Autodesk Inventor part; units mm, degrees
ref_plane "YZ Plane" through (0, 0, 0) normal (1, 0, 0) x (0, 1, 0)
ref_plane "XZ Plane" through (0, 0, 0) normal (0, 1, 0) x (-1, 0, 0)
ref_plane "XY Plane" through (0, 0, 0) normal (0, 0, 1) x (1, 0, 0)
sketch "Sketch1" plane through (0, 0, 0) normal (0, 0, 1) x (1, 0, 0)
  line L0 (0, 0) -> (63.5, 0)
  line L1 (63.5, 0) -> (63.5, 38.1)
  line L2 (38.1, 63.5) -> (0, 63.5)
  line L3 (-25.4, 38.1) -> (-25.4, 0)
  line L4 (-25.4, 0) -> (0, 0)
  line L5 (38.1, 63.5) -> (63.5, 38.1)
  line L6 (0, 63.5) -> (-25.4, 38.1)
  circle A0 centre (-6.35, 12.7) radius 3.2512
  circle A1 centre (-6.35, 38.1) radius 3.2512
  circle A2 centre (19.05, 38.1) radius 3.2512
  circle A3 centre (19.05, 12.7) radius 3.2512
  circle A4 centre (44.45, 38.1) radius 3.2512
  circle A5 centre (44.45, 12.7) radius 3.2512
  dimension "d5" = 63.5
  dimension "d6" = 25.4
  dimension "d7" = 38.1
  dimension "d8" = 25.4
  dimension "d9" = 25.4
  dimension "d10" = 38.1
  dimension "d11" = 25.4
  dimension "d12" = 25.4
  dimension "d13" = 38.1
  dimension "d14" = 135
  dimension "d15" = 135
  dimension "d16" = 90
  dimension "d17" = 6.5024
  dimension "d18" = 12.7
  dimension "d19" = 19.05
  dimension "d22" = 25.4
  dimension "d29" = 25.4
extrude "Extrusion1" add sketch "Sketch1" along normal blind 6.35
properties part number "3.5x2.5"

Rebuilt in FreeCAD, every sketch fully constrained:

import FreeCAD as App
import Part
import Sketcher
Q = App.Units.Quantity


def add_polygon(sketch, points):
    """Adds a closed chain of lines whose ends are joined by coincident constraints."""
    first, n = sketch.GeometryCount, len(points)
    for a, b in zip(points, points[1:] + points[:1]):
        sketch.addGeometry(Part.LineSegment(App.Vector(*a, 0), App.Vector(*b, 0)), False)
    for i in range(n):
        sketch.addConstraint(Sketcher.Constraint("Coincident", first + i, 2, first + (i + 1) % n, 1))

doc = App.newDocument("Part")
body = doc.addObject("PartDesign::Body", "Body")

sketch1 = body.newObject("Sketcher::SketchObject", "Sketch")
sketch1.AttachmentSupport = (doc.getObject("XY_Plane"), [""])
sketch1.MapMode = "FlatFace"
add_polygon(sketch1, [(-25.4, 0), (63.5, 0), (63.5, 38.1), (38.1, 63.5), (0, 63.5), (-25.4, 38.1)])
sketch1.addGeometry(Part.Circle(App.Vector(-6.3, 12.7, 0), App.Vector(0, 0, 1), 3.3), False)
sketch1.addGeometry(Part.Circle(App.Vector(19.1, 12.7, 0), App.Vector(0, 0, 1), 3.3), False)
sketch1.addGeometry(Part.Circle(App.Vector(44.5, 12.7, 0), App.Vector(0, 0, 1), 3.3), False)
sketch1.addGeometry(Part.Circle(App.Vector(-6.3, 38.1, 0), App.Vector(0, 0, 1), 3.3), False)
sketch1.addGeometry(Part.Circle(App.Vector(19.1, 38.1, 0), App.Vector(0, 0, 1), 3.3), False)
sketch1.addGeometry(Part.Circle(App.Vector(44.5, 38.1, 0), App.Vector(0, 0, 1), 3.3), False)
sketch1.addConstraint([
    Sketcher.Constraint("Horizontal", 0),
    Sketcher.Constraint("Vertical", 1),
    Sketcher.Constraint("Horizontal", 3),
    Sketcher.Constraint("Vertical", 5),
    Sketcher.Constraint("Equal", 6, 7),
    Sketcher.Constraint("Equal", 7, 8),
    Sketcher.Constraint("Equal", 8, 9),
    Sketcher.Constraint("Equal", 9, 10),
    Sketcher.Constraint("Equal", 10, 11),
    Sketcher.Constraint("PointOnObject", 0, 2, -1),
    Sketcher.Constraint("PointOnObject", 3, 2, -2),
    Sketcher.Constraint("Perpendicular", 2, 4),
    Sketcher.Constraint("Horizontal", 6, 3, 7, 3),
    Sketcher.Constraint("Horizontal", 7, 3, 8, 3),
    Sketcher.Constraint("Horizontal", 9, 3, 10, 3),
    Sketcher.Constraint("Horizontal", 10, 3, 11, 3),
    Sketcher.Constraint("Horizontal", 11, 3, 1, 2),
    Sketcher.Constraint("Horizontal", 1, 2, 4, 2),
    Sketcher.Constraint("Vertical", 6, 3, 9, 3),
    Sketcher.Constraint("Vertical", 7, 3, 10, 3),
    Sketcher.Constraint("Vertical", 8, 3, 11, 3),
    Sketcher.Constraint("Equal", 3, 1),
    Sketcher.Constraint("Equal", 2, 4),
    Sketcher.Constraint("Diameter", 6, Q("0.256 in")),
    Sketcher.Constraint("DistanceX", 3, 2, 3, 1, Q("1.5 in")),
    Sketcher.Constraint("DistanceX", 4, 2, -1, 1, Q("1 in")),
    Sketcher.Constraint("DistanceX", 6, 3, 7, 3, Q("1 in")),
    Sketcher.Constraint("DistanceX", 7, 3, 8, 3, Q("1 in")),
    Sketcher.Constraint("DistanceY", 6, 3, 9, 3, Q("1 in")),
    Sketcher.Constraint("DistanceX", -1, 1, 7, 3, Q("0.75 in")),
])
pad1 = body.newObject("PartDesign::Pad", "Pad")
pad1.Profile = sketch1
pad1.Length = Q("0.25 in")

doc.recompute()
